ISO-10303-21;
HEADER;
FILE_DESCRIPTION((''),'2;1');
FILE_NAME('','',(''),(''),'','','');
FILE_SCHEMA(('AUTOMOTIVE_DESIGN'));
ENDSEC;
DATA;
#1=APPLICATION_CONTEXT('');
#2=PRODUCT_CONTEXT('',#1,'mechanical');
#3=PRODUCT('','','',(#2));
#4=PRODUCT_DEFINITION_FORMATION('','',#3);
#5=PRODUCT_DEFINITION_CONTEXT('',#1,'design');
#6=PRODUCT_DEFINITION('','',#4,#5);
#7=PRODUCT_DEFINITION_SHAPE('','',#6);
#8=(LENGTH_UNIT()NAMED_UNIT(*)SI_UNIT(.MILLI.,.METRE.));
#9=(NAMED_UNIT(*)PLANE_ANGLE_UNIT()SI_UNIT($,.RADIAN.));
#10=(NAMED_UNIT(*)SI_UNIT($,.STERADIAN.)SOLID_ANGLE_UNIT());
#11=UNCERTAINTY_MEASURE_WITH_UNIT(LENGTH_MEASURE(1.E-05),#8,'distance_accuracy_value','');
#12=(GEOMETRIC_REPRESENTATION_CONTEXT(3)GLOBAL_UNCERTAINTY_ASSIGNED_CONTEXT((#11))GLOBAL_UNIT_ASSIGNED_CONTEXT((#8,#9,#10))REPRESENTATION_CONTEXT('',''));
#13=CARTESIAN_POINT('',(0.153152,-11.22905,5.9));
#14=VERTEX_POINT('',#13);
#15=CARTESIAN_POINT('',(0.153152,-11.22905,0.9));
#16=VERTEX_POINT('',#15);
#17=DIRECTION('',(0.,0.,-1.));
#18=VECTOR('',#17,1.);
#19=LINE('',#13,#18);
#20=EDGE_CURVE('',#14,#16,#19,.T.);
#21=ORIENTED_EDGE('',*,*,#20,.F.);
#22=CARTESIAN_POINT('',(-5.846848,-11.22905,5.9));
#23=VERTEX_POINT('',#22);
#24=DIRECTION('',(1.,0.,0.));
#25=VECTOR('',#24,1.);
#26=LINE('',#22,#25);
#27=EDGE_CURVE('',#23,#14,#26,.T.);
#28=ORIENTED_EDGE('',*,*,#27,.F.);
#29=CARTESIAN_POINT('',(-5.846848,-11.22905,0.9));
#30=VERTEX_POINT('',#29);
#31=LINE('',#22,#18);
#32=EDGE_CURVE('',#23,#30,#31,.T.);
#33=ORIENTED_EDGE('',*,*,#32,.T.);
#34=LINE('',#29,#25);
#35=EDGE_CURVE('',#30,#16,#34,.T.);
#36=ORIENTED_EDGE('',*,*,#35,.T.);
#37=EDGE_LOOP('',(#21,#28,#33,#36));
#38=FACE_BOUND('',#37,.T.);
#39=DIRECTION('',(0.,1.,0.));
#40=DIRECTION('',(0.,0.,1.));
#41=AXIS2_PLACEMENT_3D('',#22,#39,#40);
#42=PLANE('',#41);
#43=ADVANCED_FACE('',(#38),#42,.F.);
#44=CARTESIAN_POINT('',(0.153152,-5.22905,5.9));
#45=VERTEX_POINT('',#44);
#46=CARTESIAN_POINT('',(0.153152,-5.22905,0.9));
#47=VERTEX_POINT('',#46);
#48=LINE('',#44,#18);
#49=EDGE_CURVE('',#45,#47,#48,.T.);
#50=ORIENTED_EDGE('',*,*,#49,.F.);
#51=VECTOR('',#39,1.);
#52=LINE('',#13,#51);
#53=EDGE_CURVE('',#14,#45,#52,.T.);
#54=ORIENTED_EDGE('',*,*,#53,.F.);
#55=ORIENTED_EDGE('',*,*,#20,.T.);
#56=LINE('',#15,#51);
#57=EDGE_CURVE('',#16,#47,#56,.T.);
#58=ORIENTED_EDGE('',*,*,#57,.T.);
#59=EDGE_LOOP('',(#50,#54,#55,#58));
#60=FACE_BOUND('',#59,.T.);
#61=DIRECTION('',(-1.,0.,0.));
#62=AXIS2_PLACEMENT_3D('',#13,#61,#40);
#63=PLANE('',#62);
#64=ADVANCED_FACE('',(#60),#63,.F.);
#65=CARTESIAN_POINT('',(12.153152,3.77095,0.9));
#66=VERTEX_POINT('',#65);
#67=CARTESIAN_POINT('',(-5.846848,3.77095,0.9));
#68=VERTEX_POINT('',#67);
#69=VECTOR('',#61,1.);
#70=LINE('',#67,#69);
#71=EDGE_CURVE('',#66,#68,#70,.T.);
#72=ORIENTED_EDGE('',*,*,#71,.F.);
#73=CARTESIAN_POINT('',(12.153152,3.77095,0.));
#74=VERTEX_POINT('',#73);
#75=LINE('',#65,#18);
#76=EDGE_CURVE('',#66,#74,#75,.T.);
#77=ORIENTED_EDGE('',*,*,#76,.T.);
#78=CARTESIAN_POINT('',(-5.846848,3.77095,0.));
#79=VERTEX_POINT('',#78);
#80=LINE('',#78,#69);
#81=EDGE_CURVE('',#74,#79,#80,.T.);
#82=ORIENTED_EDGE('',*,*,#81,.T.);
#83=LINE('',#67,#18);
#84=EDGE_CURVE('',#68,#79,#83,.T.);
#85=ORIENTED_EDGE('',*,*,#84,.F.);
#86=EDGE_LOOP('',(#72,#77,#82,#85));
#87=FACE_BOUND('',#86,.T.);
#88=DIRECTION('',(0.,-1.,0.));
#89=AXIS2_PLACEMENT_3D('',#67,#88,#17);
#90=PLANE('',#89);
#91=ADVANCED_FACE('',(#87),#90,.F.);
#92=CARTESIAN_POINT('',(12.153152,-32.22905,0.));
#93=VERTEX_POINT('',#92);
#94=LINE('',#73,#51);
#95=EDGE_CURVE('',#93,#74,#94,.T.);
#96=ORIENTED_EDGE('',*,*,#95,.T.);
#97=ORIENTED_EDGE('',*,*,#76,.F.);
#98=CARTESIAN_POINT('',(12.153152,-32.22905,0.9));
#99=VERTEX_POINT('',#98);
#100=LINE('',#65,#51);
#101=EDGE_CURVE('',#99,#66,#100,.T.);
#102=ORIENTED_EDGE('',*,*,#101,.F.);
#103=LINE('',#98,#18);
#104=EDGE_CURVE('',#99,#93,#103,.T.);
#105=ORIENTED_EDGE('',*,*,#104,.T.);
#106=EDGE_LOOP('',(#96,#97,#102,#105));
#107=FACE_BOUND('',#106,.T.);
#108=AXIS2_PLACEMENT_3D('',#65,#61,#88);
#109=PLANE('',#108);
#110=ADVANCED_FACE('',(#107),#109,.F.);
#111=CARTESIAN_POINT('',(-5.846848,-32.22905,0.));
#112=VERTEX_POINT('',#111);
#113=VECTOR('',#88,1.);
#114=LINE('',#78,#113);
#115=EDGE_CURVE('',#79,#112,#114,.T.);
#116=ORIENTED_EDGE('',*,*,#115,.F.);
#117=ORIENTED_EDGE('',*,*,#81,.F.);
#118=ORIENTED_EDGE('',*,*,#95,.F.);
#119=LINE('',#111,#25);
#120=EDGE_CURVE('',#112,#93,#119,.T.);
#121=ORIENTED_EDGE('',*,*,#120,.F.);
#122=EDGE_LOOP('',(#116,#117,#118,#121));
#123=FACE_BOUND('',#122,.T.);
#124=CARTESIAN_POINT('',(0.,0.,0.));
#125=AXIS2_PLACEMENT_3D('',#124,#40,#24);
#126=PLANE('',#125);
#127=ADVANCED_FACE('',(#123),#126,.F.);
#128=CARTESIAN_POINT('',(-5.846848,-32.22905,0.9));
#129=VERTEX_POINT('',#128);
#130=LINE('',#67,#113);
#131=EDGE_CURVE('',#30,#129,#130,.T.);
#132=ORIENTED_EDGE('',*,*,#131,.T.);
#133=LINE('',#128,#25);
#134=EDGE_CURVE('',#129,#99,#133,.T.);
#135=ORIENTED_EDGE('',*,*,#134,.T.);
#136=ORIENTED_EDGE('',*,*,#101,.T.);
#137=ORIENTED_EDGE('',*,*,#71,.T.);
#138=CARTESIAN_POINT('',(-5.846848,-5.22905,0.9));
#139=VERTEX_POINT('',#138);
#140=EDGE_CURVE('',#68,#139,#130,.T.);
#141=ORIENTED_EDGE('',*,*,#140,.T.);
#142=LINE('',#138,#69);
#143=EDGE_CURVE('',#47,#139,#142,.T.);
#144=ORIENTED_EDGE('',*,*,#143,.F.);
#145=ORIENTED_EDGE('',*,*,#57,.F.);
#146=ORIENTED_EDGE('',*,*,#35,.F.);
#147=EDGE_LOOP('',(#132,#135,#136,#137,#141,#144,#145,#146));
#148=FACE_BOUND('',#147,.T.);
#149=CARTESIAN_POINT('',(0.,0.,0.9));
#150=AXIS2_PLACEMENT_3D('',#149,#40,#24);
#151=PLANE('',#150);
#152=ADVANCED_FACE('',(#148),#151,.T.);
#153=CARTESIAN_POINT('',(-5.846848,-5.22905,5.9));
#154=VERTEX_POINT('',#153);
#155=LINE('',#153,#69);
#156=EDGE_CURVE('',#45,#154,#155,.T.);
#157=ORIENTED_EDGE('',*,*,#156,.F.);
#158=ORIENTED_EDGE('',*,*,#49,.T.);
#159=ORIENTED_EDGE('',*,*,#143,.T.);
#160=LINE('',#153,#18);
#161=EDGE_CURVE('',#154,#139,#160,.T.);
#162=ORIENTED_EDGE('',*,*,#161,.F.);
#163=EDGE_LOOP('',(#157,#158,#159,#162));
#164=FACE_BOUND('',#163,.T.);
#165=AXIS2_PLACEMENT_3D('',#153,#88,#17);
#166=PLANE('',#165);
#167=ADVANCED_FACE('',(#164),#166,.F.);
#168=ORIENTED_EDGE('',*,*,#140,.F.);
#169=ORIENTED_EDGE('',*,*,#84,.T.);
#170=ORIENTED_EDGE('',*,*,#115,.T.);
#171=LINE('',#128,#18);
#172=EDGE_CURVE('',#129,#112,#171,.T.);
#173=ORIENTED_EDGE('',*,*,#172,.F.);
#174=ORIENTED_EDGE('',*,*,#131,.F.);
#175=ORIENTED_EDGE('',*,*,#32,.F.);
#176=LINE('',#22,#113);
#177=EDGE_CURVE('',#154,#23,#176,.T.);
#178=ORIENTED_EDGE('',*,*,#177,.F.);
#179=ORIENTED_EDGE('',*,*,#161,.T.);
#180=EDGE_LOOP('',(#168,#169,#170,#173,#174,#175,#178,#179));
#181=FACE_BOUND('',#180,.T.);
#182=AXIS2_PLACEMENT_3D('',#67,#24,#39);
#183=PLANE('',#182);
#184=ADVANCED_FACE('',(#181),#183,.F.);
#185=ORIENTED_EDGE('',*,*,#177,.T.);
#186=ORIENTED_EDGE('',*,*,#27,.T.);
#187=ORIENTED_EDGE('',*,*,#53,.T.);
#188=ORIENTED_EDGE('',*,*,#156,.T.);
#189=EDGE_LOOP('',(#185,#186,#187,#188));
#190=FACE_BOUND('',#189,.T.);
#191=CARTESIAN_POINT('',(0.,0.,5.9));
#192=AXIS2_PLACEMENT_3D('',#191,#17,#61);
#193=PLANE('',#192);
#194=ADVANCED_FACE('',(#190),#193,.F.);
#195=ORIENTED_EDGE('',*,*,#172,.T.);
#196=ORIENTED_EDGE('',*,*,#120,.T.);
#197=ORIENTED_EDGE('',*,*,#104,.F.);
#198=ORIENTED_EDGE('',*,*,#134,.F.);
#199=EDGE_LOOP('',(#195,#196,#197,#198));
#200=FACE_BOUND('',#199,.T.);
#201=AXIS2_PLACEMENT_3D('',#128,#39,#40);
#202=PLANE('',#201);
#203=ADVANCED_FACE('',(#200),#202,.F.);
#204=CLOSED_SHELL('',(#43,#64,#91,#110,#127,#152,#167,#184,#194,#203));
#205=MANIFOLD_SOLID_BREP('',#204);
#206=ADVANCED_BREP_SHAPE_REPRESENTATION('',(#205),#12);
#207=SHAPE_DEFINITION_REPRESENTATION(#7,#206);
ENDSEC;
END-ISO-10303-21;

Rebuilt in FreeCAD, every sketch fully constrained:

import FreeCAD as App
import Part
import Sketcher
from FreeCAD import Vector
Q = App.Units.Quantity

doc = App.newDocument("Part")
params = doc.addObject("Spreadsheet::Sheet", "Params")
for row, (alias, value) in enumerate([
    ("sketch1_width", "18 mm"),
    ("sketch1_height", "36 mm"),
    ("pad1_length", "0.9 mm"),
    ("sketch2_width", "6 mm"),
    ("pad2_length", "5 mm"),
], start=1):
    params.set(f"A{row}", alias)
    params.set(f"B{row}", "=" + value)
    params.setAlias(f"B{row}", alias)

body = doc.addObject("PartDesign::Body", "Body")

# Sketch on XY plane
sketch1 = doc.addObject("Sketcher::SketchObject", "Sketch")
body.addObject(sketch1)
sketch1.AttachmentSupport = (doc.XY_Plane, [""])
sketch1.MapMode = "FlatFace"
sketch1.addGeometry(Part.LineSegment(Vector(-6, 4, 0), Vector(-6, -32, 0)), False)
sketch1.addGeometry(Part.LineSegment(Vector(-6, -32, 0), Vector(12, -32, 0)), False)
sketch1.addGeometry(Part.LineSegment(Vector(12, -32, 0), Vector(12, 4, 0)), False)
sketch1.addGeometry(Part.LineSegment(Vector(12, 4, 0), Vector(-6, 4, 0)), False)
sketch1.addConstraint(Sketcher.Constraint("Coincident", 0, 2, 1, 1))
sketch1.addConstraint(Sketcher.Constraint("Coincident", 1, 2, 2, 1))
sketch1.addConstraint(Sketcher.Constraint("Coincident", 2, 2, 3, 1))
sketch1.addConstraint(Sketcher.Constraint("Coincident", 3, 2, 0, 1))
sketch1.addConstraint(Sketcher.Constraint("Vertical", 0))
sketch1.addConstraint(Sketcher.Constraint("Horizontal", 1))
sketch1.addConstraint(Sketcher.Constraint("Vertical", 2))
sketch1.addConstraint(Sketcher.Constraint("Horizontal", 3))
sketch1.addConstraint(Sketcher.Constraint("DistanceX", 1, 1, 1, 2, Q("18 mm")))
sketch1.addConstraint(Sketcher.Constraint("DistanceY", 0, 2, 0, 1, Q("36 mm")))
sketch1.addConstraint(Sketcher.Constraint("DistanceY", 0, 2, -1, 1, Q("32.22905 mm")))
sketch1.addConstraint(Sketcher.Constraint("DistanceX", 0, 2, -1, 1, Q("5.846848 mm")))
sketch1.setExpression("Constraints[8]", "Params.sketch1_width")
sketch1.setExpression("Constraints[9]", "Params.sketch1_height")
pad1 = doc.addObject("PartDesign::Pad", "Pad")
body.addObject(pad1)
pad1.Profile = sketch1
pad1.setExpression("Length", "Params.pad1_length")

# Sketch on XY plane
sketch2 = doc.addObject("Sketcher::SketchObject", "Sketch001")
body.addObject(sketch2)
sketch2.AttachmentSupport = (doc.XY_Plane, [""])
sketch2.MapMode = "FlatFace"
sketch2.AttachmentOffset = App.Placement(Vector(0, 0, 0.9), App.Rotation())
sketch2.addGeometry(Part.LineSegment(Vector(-6, -5, 0), Vector(-6, -11, 0)), False)
sketch2.addGeometry(Part.LineSegment(Vector(-6, -11, 0), Vector(0, -11, 0)), False)
sketch2.addGeometry(Part.LineSegment(Vector(0, -11, 0), Vector(0, -5, 0)), False)
sketch2.addGeometry(Part.LineSegment(Vector(0, -5, 0), Vector(-6, -5, 0)), False)
sketch2.addConstraint(Sketcher.Constraint("Coincident", 0, 2, 1, 1))
sketch2.addConstraint(Sketcher.Constraint("Coincident", 1, 2, 2, 1))
sketch2.addConstraint(Sketcher.Constraint("Coincident", 2, 2, 3, 1))
sketch2.addConstraint(Sketcher.Constraint("Coincident", 3, 2, 0, 1))
sketch2.addConstraint(Sketcher.Constraint("Vertical", 0))
sketch2.addConstraint(Sketcher.Constraint("Horizontal", 1))
sketch2.addConstraint(Sketcher.Constraint("Vertical", 2))
sketch2.addConstraint(Sketcher.Constraint("Horizontal", 3))
sketch2.addConstraint(Sketcher.Constraint("Equal", 3, 0))
sketch2.addConstraint(Sketcher.Constraint("DistanceX", 1, 1, 1, 2, Q("6 mm")))
sketch2.addConstraint(Sketcher.Constraint("DistanceY", 0, 2, -1, 1, Q("11.22905 mm")))
sketch2.addConstraint(Sketcher.Constraint("DistanceX", 0, 2, -1, 1, Q("5.846848 mm")))
sketch2.setExpression("Constraints[9]", "Params.sketch2_width")
pad2 = doc.addObject("PartDesign::Pad", "Pad001")
body.addObject(pad2)
pad2.Profile = sketch2
pad2.setExpression("Length", "Params.pad2_length")

doc.recompute()
